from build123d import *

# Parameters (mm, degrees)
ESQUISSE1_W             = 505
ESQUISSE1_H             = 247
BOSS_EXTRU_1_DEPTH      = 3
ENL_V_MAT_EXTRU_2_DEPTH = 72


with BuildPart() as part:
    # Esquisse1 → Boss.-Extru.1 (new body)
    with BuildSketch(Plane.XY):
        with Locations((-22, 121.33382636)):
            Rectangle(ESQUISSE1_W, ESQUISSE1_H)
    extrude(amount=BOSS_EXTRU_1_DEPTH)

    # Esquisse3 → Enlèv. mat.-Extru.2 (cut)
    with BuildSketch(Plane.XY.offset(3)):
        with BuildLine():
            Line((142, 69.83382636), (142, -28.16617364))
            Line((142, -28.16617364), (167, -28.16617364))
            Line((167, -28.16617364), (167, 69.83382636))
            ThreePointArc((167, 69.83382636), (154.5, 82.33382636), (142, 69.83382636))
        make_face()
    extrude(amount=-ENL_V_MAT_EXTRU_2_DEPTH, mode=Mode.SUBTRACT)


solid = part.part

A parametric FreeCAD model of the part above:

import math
import FreeCAD as App
import Part
import Sketcher
from FreeCAD import Vector
Q = App.Units.Quantity

doc = App.newDocument("Part")
body = doc.addObject("PartDesign::Body", "Body")

sketch1 = body.newObject("Sketcher::SketchObject", "Sketch")
sketch1.AttachmentSupport = (doc.getObject("XY_Plane"), [""])
sketch1.MapMode = "FlatFace"
sketch1.addGeometry(Part.LineSegment(Vector(-274.5, 244.833826, 0), Vector(-274.5, -2.166174, 0)), False)
sketch1.addGeometry(Part.LineSegment(Vector(-274.5, -2.166174, 0), Vector(230.5, -2.166174, 0)), False)
sketch1.addGeometry(Part.LineSegment(Vector(230.5, -2.166174, 0), Vector(230.5, 244.833826, 0)), False)
sketch1.addGeometry(Part.LineSegment(Vector(230.5, 244.833826, 0), Vector(-274.5, 244.833826, 0)), False)
sketch1.addConstraint(Sketcher.Constraint("Coincident", 0, 2, 1, 1))
sketch1.addConstraint(Sketcher.Constraint("Coincident", 1, 2, 2, 1))
sketch1.addConstraint(Sketcher.Constraint("Coincident", 2, 2, 3, 1))
sketch1.addConstraint(Sketcher.Constraint("Coincident", 3, 2, 0, 1))
sketch1.addConstraint(Sketcher.Constraint("Vertical", 0))
sketch1.addConstraint(Sketcher.Constraint("Horizontal", 1))
sketch1.addConstraint(Sketcher.Constraint("Vertical", 2))
sketch1.addConstraint(Sketcher.Constraint("Horizontal", 3))
sketch1.addConstraint(Sketcher.Constraint("DistanceX", 1, 1, 1, 2, Q("505 mm")))
sketch1.addConstraint(Sketcher.Constraint("DistanceY", 0, 2, 0, 1, Q("247 mm")))
sketch1.addConstraint(Sketcher.Constraint("DistanceX", 0, 2, -1, 1, Q("274.5 mm")))
sketch1.addConstraint(Sketcher.Constraint("DistanceY", 0, 2, -1, 1, Q("2.166174 mm")))
pad1 = body.newObject("PartDesign::Pad", "Pad")
pad1.Profile = sketch1
pad1.Length = 3

sketch2 = body.newObject("Sketcher::SketchObject", "Sketch001")
sketch2.AttachmentSupport = (doc.getObject("XY_Plane"), [""])
sketch2.MapMode = "FlatFace"
sketch2.AttachmentOffset = App.Placement(Vector(0, 0, 3), App.Rotation())
sketch2.addGeometry(Part.LineSegment(Vector(142, 69.833826, 0), Vector(142, -28.166174, 0)), False)
sketch2.addGeometry(Part.LineSegment(Vector(142, -28.166174, 0), Vector(167, -28.166174, 0)), False)
sketch2.addGeometry(Part.LineSegment(Vector(167, -28.166174, 0), Vector(167, 69.833826, 0)), False)
sketch2.addGeometry(Part.ArcOfCircle(Part.Circle(Vector(154.5, 69.833826, 0), Vector(0, 0, 1), 12.5), math.radians(0), math.radians(180)), False)
sketch2.addConstraint(Sketcher.Constraint("Coincident", 0, 2, 1, 1))
sketch2.addConstraint(Sketcher.Constraint("Coincident", 1, 2, 2, 1))
sketch2.addConstraint(Sketcher.Constraint("Tangent", 2, 2, 3, 1))
sketch2.addConstraint(Sketcher.Constraint("Tangent", 3, 2, 0, 1))
sketch2.addConstraint(Sketcher.Constraint("Vertical", 0))
sketch2.addConstraint(Sketcher.Constraint("Horizontal", 1))
sketch2.addConstraint(Sketcher.Constraint("Vertical", 2))
sketch2.addConstraint(Sketcher.Constraint("Radius", 3, Q("12.5 mm")))
sketch2.addConstraint(Sketcher.Constraint("DistanceY", 0, 2, 0, 1, Q("98 mm")))
sketch2.addConstraint(Sketcher.Constraint("DistanceX", -1, 1, 0, 2, Q("142 mm")))
sketch2.addConstraint(Sketcher.Constraint("DistanceY", -1, 1, 3, 3, Q("69.833826 mm")))
pocket1 = body.newObject("PartDesign::Pocket", "Pocket")
pocket1.Profile = sketch2
pocket1.Length = 72

doc.recompute()
